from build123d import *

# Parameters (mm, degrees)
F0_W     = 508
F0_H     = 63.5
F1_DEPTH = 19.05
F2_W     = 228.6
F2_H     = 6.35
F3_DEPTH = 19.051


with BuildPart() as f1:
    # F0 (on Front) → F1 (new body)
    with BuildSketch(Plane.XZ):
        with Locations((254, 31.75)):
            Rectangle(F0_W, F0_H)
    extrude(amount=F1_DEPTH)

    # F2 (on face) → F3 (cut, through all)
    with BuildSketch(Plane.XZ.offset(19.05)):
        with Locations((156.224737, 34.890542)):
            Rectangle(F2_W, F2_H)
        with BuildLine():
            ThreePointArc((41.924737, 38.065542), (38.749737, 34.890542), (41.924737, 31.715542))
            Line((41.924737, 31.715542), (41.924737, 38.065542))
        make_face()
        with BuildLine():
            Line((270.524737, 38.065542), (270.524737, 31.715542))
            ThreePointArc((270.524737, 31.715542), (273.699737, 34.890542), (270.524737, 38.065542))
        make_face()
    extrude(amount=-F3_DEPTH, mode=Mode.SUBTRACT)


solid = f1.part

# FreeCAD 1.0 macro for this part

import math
import FreeCAD as App
import Part
import Sketcher
from FreeCAD import Vector
Q = App.Units.Quantity


def add_polygon(sketch, points):
    """Adds a closed chain of lines whose ends are joined by coincident constraints."""
    first, n = sketch.GeometryCount, len(points)
    for a, b in zip(points, points[1:] + points[:1]):
        sketch.addGeometry(Part.LineSegment(App.Vector(*a, 0), App.Vector(*b, 0)), False)
    for i in range(n):
        sketch.addConstraint(Sketcher.Constraint("Coincident", first + i, 2, first + (i + 1) % n, 1))

doc = App.newDocument("Part")
body = doc.addObject("PartDesign::Body", "Body")

sketch1 = doc.addObject("Sketcher::SketchObject", "Sketch")
body.addObject(sketch1)
sketch1.AttachmentSupport = (doc.XZ_Plane, [""])
sketch1.MapMode = "FlatFace"
add_polygon(sketch1, [(0, 64), (0, 0), (508, 0), (508, 64)])
sketch1.addConstraint([
    Sketcher.Constraint("Vertical", 0),
    Sketcher.Constraint("Horizontal", 1),
    Sketcher.Constraint("Vertical", 2),
    Sketcher.Constraint("Horizontal", 3),
    Sketcher.Constraint("Coincident", 0, 2, -1, 1),
    Sketcher.Constraint("DistanceX", 1, 1, 1, 2, Q("20 in")),
    Sketcher.Constraint("DistanceY", 0, 2, 0, 1, Q("2.5 in")),
])
pad1 = doc.addObject("PartDesign::Pad", "Pad")
body.addObject(pad1)
pad1.Profile = sketch1
pad1.Length = Q("0.75 in")

sketch2 = doc.addObject("Sketcher::SketchObject", "Sketch001")
body.addObject(sketch2)
sketch2.AttachmentSupport = (doc.XZ_Plane, [""])
sketch2.MapMode = "FlatFace"
sketch2.AttachmentOffset = App.Placement(Vector(0, 0, 0.75 * 25.4), App.Rotation())
sketch2.addGeometry([
    Part.LineSegment(Vector(41.9, 31.7, 0), Vector(270.5, 31.7, 0)),
    Part.ArcOfCircle(Part.Circle(Vector(270.5, 34.9, 0), Vector(0, 0, 1), 3.2), math.radians(-90), math.radians(90)),
    Part.LineSegment(Vector(270.5, 38.1, 0), Vector(41.9, 38.1, 0)),
    Part.ArcOfCircle(Part.Circle(Vector(41.9, 34.9, 0), Vector(0, 0, 1), 3.2), math.radians(90), math.radians(270)),
], False)
sketch2.addConstraint([
    Sketcher.Constraint("Tangent", 0, 2, 1, 1),
    Sketcher.Constraint("Tangent", 1, 2, 2, 1),
    Sketcher.Constraint("Tangent", 2, 2, 3, 1),
    Sketcher.Constraint("Tangent", 3, 2, 0, 1),
    Sketcher.Constraint("Horizontal", 0),
    Sketcher.Constraint("Horizontal", 2),
    Sketcher.Constraint("DistanceX", 0, 1, 0, 2, Q("9 in")),
    Sketcher.Constraint("Radius", 1, Q("0.125 in")),
    Sketcher.Constraint("DistanceY", -1, 1, 0, 2, Q("31.715542 mm")),
    Sketcher.Constraint("DistanceX", -1, 1, 1, 3, Q("270.524737 mm")),
])
pocket1 = doc.addObject("PartDesign::Pocket", "Pocket")
body.addObject(pocket1)
pocket1.Profile = sketch2
pocket1.Type = "ThroughAll"

doc.recompute()
